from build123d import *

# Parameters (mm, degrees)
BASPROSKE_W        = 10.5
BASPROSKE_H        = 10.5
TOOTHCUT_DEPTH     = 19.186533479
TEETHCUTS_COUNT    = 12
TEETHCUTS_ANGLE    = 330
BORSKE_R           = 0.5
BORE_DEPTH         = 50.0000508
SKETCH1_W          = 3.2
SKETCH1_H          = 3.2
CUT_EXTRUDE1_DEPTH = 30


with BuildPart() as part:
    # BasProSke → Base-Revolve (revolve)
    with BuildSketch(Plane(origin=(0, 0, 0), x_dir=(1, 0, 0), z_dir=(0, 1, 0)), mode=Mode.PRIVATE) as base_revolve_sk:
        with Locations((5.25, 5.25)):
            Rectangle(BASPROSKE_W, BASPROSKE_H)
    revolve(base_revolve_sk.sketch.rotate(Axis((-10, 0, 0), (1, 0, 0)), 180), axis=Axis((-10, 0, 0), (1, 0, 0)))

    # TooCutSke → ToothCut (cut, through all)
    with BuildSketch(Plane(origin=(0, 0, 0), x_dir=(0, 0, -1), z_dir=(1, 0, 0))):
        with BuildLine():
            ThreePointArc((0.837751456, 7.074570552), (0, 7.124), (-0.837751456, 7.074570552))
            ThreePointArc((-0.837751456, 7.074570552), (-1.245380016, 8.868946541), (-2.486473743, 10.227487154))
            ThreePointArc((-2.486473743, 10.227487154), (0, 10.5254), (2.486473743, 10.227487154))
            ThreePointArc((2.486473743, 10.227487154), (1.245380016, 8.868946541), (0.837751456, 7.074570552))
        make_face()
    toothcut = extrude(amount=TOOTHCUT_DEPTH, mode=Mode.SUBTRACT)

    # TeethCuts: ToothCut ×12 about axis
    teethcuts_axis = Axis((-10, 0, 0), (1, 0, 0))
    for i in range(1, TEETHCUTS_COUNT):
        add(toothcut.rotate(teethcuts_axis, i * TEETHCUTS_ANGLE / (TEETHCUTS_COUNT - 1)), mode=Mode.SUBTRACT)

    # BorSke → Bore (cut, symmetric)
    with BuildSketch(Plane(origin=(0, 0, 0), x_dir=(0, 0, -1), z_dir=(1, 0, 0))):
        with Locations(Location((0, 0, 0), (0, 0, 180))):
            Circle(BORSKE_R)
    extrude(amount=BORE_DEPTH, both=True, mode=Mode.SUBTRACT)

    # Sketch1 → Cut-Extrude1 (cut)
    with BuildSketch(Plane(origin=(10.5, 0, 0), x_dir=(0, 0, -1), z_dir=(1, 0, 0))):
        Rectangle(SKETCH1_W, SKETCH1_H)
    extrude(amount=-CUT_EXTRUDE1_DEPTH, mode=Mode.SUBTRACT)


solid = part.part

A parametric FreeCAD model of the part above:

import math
import FreeCAD as App
import Part
import Sketcher
Q = App.Units.Quantity

doc = App.newDocument("Part")
params = doc.addObject("Spreadsheet::Sheet", "Params")
for row, (alias, value) in enumerate([
    ("sketch1_width", "10.5 mm"),
    ("revolution_angle", "360 deg"),
    ("sketch2_radius", "3.6 mm"),
    ("sketch3_diameter", "1 mm"),
    ("pocket2_length", "100.000102 mm"),
    ("sketch4_width", "3.2 mm"),
    ("pocket3_length", "30 mm"),
], start=1):
    params.set(f"A{row}", alias)
    params.set(f"B{row}", "=" + value)
    params.setAlias(f"B{row}", alias)

body = doc.addObject("PartDesign::Body", "Body")

sketch1 = body.newObject("Sketcher::SketchObject", "Sketch")
sketch1.AttachmentSupport = (doc.getObject("XZ_Plane"), [""])
sketch1.MapMode = "FlatFace"
sketch1.addGeometry([
    Part.LineSegment(App.Vector(0, -10, 0), App.Vector(0, 0, 0)),
    Part.LineSegment(App.Vector(0, 0, 0), App.Vector(10, 0, 0)),
    Part.LineSegment(App.Vector(10, 0, 0), App.Vector(10, -10, 0)),
    Part.LineSegment(App.Vector(10, -10, 0), App.Vector(0, -10, 0)),
], False)
sketch1.addConstraint([
    Sketcher.Constraint("Coincident", 0, 2, 1, 1),
    Sketcher.Constraint("Coincident", 1, 2, 2, 1),
    Sketcher.Constraint("Coincident", 2, 2, 3, 1),
    Sketcher.Constraint("Coincident", 3, 2, 0, 1),
    Sketcher.Constraint("Vertical", 0),
    Sketcher.Constraint("Horizontal", 1),
    Sketcher.Constraint("Vertical", 2),
    Sketcher.Constraint("Horizontal", 3),
    Sketcher.Constraint("Coincident", 0, 2, -1, 1),
    Sketcher.Constraint("Equal", 3, 0),
    Sketcher.Constraint("DistanceX", 1, 1, 1, 2, Q("10.5 mm")),
])
sketch1.setExpression("Constraints[10]", "Params.sketch1_width")
revolution = body.newObject("PartDesign::Revolution", "Revolution")
revolution.Profile = sketch1
revolution.ReferenceAxis = (sketch1, ["H_Axis"])
revolution.setExpression("Angle", "Params.revolution_angle")

sketch2 = body.newObject("Sketcher::SketchObject", "Sketch001")
sketch2.AttachmentSupport = (doc.getObject("YZ_Plane"), [""])
sketch2.MapMode = "FlatFace"
sketch2.addGeometry([
    Part.ArcOfCircle(Part.Circle(App.Vector(0, 0, 0), App.Vector(0, 0, 1), 7.1), math.radians(-6.75), math.radians(6.75)),
    Part.ArcOfCircle(Part.Circle(App.Vector(7.2, -4.4, 0), App.Vector(0, 0, 1), 3.6), math.radians(33), math.radians(92)),
    Part.ArcOfCircle(Part.Circle(App.Vector(0, 0, 0), App.Vector(0, 0, 1), 10.5), math.radians(-14), math.radians(14)),
    Part.ArcOfCircle(Part.Circle(App.Vector(7.2, 4.4, 0), App.Vector(0, 0, 1), 3.6), math.radians(-92), math.radians(-33)),
], False)
sketch2.addConstraint([
    Sketcher.Constraint("Coincident", 0, 1, 1, 2),
    Sketcher.Constraint("Coincident", 1, 1, 2, 1),
    Sketcher.Constraint("Coincident", 2, 2, 3, 2),
    Sketcher.Constraint("Coincident", 3, 1, 0, 2),
    Sketcher.Constraint("Coincident", 0, 3, -1, 1),
    Sketcher.Constraint("Coincident", 2, 3, -1, 1),
    Sketcher.Constraint("Equal", 1, 3),
    Sketcher.Constraint("Symmetric", 1, 3, 3, 3, -1),
    Sketcher.Constraint("Radius", 1, Q("3.6 mm")),
    Sketcher.Constraint("Radius", 0, Q("7.124 mm")),
    Sketcher.Constraint("Radius", 2, Q("10.5254 mm")),
    Sketcher.Constraint("DistanceX", -1, 1, 1, 3, Q("7.200749 mm")),
    Sketcher.Constraint("DistanceY", 1, 3, -1, 1, Q("4.43554 mm")),
])
sketch2.setExpression("Constraints[8]", "Params.sketch2_radius")
pocket1 = body.newObject("PartDesign::Pocket", "Pocket")
pocket1.Profile = sketch2
pocket1.Type = "ThroughAll"
pocket1.Reversed = True
doc.recompute()

polarpattern = body.newObject("PartDesign::PolarPattern", "PolarPattern")
polarpattern.Originals = [pocket1]
polarpattern.Axis = (doc.getObject("X_Axis"), [""])
polarpattern.Angle = 360
polarpattern.Occurrences = 12
body.Tip = polarpattern

sketch3 = body.newObject("Sketcher::SketchObject", "Sketch002")
sketch3.AttachmentSupport = (doc.getObject("YZ_Plane"), [""])
sketch3.MapMode = "FlatFace"
sketch3.addGeometry(Part.Circle(App.Vector(0, 0, 0), App.Vector(0, 0, 1), 0.5), False)
sketch3.addConstraint([
    Sketcher.Constraint("Coincident", 0, 3, -1, 1),
    Sketcher.Constraint("Diameter", 0, Q("1 mm")),
])
sketch3.setExpression("Constraints[1]", "Params.sketch3_diameter")
pocket2 = body.newObject("PartDesign::Pocket", "Pocket001")
pocket2.Profile = sketch3
pocket2.setExpression("Length", "Params.pocket2_length")
pocket2.Midplane = True

sketch4 = body.newObject("Sketcher::SketchObject", "Sketch003")
sketch4.AttachmentSupport = (doc.getObject("YZ_Plane"), [""])
sketch4.MapMode = "FlatFace"
sketch4.AttachmentOffset = App.Placement(App.Vector(0, 0, 10.5), App.Rotation())
sketch4.addGeometry([
    Part.LineSegment(App.Vector(1.6, 1.6, 0), App.Vector(-1.6, 1.6, 0)),
    Part.LineSegment(App.Vector(-1.6, 1.6, 0), App.Vector(-1.6, -1.6, 0)),
    Part.LineSegment(App.Vector(-1.6, -1.6, 0), App.Vector(1.6, -1.6, 0)),
    Part.LineSegment(App.Vector(1.6, -1.6, 0), App.Vector(1.6, 1.6, 0)),
], False)
sketch4.addConstraint([
    Sketcher.Constraint("Coincident", 0, 2, 1, 1),
    Sketcher.Constraint("Coincident", 1, 2, 2, 1),
    Sketcher.Constraint("Coincident", 2, 2, 3, 1),
    Sketcher.Constraint("Coincident", 3, 2, 0, 1),
    Sketcher.Constraint("Horizontal", 0),
    Sketcher.Constraint("Vertical", 1),
    Sketcher.Constraint("Horizontal", 2),
    Sketcher.Constraint("Vertical", 3),
    Sketcher.Constraint("Symmetric", 0, 2, 2, 2, -1, 1),
    Sketcher.Constraint("Equal", 2, 1),
    Sketcher.Constraint("DistanceX", 0, 2, 0, 1, Q("3.2 mm")),
])
sketch4.setExpression("Constraints[10]", "Params.sketch4_width")
pocket3 = body.newObject("PartDesign::Pocket", "Pocket002")
pocket3.Profile = sketch4
pocket3.setExpression("Length", "Params.pocket3_length")

doc.recompute()
